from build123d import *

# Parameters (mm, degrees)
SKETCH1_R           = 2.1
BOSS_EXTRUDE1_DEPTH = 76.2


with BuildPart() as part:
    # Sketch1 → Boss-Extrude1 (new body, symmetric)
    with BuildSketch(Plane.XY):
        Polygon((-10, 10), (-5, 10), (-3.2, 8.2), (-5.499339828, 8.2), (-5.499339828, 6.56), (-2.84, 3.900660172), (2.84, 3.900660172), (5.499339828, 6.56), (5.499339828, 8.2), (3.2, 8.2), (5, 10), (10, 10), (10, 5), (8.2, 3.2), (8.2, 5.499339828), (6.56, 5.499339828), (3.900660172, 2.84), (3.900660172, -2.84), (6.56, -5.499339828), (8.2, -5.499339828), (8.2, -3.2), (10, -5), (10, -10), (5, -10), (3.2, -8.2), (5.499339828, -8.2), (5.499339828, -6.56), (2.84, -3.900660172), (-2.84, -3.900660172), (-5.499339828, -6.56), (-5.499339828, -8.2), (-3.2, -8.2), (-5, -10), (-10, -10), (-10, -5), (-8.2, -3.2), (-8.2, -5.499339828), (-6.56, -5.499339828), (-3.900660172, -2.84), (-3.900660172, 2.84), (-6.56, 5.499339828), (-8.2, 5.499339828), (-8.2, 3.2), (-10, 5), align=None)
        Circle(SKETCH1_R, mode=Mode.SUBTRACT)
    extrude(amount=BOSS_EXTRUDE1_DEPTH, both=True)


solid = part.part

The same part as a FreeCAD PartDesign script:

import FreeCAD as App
import Part
import Sketcher
from FreeCAD import Vector
Q = App.Units.Quantity


def add_polygon(sketch, points):
    """Adds a closed chain of lines whose ends are joined by coincident constraints."""
    first, n = sketch.GeometryCount, len(points)
    for a, b in zip(points, points[1:] + points[:1]):
        sketch.addGeometry(Part.LineSegment(App.Vector(*a, 0), App.Vector(*b, 0)), False)
    for i in range(n):
        sketch.addConstraint(Sketcher.Constraint("Coincident", first + i, 2, first + (i + 1) % n, 1))

doc = App.newDocument("Part")
params = doc.addObject("Spreadsheet::Sheet", "Params")
for row, (alias, value) in enumerate([
    ("sketch1_diameter", "4.2 mm"),
    ("sketch1_width", "5 mm"),
    ("sketch1_width2", "1.64 mm"),
    ("sketch1_width3", "5.68 mm"),
    ("pad1_length", "152.4 mm"),
], start=1):
    params.set(f"A{row}", alias)
    params.set(f"B{row}", "=" + value)
    params.setAlias(f"B{row}", alias)

body = doc.addObject("PartDesign::Body", "Body")

# Sketch on XY plane
sketch1 = body.newObject("Sketcher::SketchObject", "Sketch")
sketch1.AttachmentSupport = (doc.getObject("XY_Plane"), [""])
sketch1.MapMode = "FlatFace"
add_polygon(sketch1, [(-5, 10), (-10, 10), (-10, 5), (-8.2, 3.2), (-8.2, 5.49934), (-6.56, 5.49934), (-3.90066, 2.84), (-3.90066, -2.84), (-6.56, -5.49934), (-8.2, -5.49934), (-8.2, -3.2), (-10, -5), (-10, -10), (-5, -10), (-3.2, -8.2), (-5.49934, -8.2), (-5.49934, -6.56), (-2.84, -3.90066), (2.84, -3.90066), (5.49934, -6.56), (5.49934, -8.2), (3.2, -8.2), (5, -10), (10, -10), (10, -5), (8.2, -3.2), (8.2, -5.49934), (6.56, -5.49934), (3.90066, -2.84), (3.90066, 2.84), (6.56, 5.49934), (8.2, 5.49934), (8.2, 3.2), (10, 5), (10, 10), (5, 10), (3.2, 8.2), (5.49934, 8.2), (5.49934, 6.56), (2.84, 3.90066), (-2.84, 3.90066), (-5.49934, 6.56), (-5.49934, 8.2), (-3.2, 8.2)])  # lines 0-43
sketch1.addGeometry(Part.Circle(Vector(0, 0, 0), Vector(0, 0, 1), 2.1), False)  # 44
sketch1.addConstraint(Sketcher.Constraint("Horizontal", 0))
sketch1.addConstraint(Sketcher.Constraint("Vertical", 1))
sketch1.addConstraint(Sketcher.Constraint("Vertical", 3))
sketch1.addConstraint(Sketcher.Constraint("Horizontal", 4))
sketch1.addConstraint(Sketcher.Constraint("Vertical", 6))
sketch1.addConstraint(Sketcher.Constraint("Horizontal", 8))
sketch1.addConstraint(Sketcher.Constraint("Vertical", 9))
sketch1.addConstraint(Sketcher.Constraint("Vertical", 11))
sketch1.addConstraint(Sketcher.Constraint("Horizontal", 12))
sketch1.addConstraint(Sketcher.Constraint("Horizontal", 14))
sketch1.addConstraint(Sketcher.Constraint("Vertical", 15))
sketch1.addConstraint(Sketcher.Constraint("Horizontal", 17))
sketch1.addConstraint(Sketcher.Constraint("Vertical", 19))
sketch1.addConstraint(Sketcher.Constraint("Horizontal", 20))
sketch1.addConstraint(Sketcher.Constraint("Horizontal", 22))
sketch1.addConstraint(Sketcher.Constraint("Vertical", 23))
sketch1.addConstraint(Sketcher.Constraint("Vertical", 25))
sketch1.addConstraint(Sketcher.Constraint("Horizontal", 26))
sketch1.addConstraint(Sketcher.Constraint("Vertical", 28))
sketch1.addConstraint(Sketcher.Constraint("Horizontal", 30))
sketch1.addConstraint(Sketcher.Constraint("Vertical", 31))
sketch1.addConstraint(Sketcher.Constraint("Vertical", 33))
sketch1.addConstraint(Sketcher.Constraint("Horizontal", 34))
sketch1.addConstraint(Sketcher.Constraint("Horizontal", 36))
sketch1.addConstraint(Sketcher.Constraint("Vertical", 37))
sketch1.addConstraint(Sketcher.Constraint("Horizontal", 39))
sketch1.addConstraint(Sketcher.Constraint("Vertical", 41))
sketch1.addConstraint(Sketcher.Constraint("Horizontal", 42))
sketch1.addConstraint(Sketcher.Constraint("Coincident", 44, 3, -1, 1))
sketch1.addConstraint(Sketcher.Constraint("Symmetric", 0, 2, 22, 2, -1, 1))
sketch1.addConstraint(Sketcher.Constraint("Symmetric", 2, 2, 24, 2, -1, 1))
sketch1.addConstraint(Sketcher.Constraint("Symmetric", 4, 2, 26, 2, -1, 1))
sketch1.addConstraint(Sketcher.Constraint("Symmetric", 5, 2, 27, 2, -1, 1))
sketch1.addConstraint(Sketcher.Constraint("Symmetric", 7, 2, 29, 2, -1, 1))
sketch1.addConstraint(Sketcher.Constraint("Symmetric", 9, 2, 31, 2, -1, 1))
sketch1.addConstraint(Sketcher.Constraint("Symmetric", 10, 2, 32, 2, -1, 1))
sketch1.addConstraint(Sketcher.Constraint("Symmetric", 12, 2, 34, 2, -1, 1))
sketch1.addConstraint(Sketcher.Constraint("Symmetric", 13, 2, 35, 2, -1, 1))
sketch1.addConstraint(Sketcher.Constraint("Symmetric", 15, 2, 37, 2, -1, 1))
sketch1.addConstraint(Sketcher.Constraint("Symmetric", 16, 2, 38, 2, -1, 1))
sketch1.addConstraint(Sketcher.Constraint("Symmetric", 18, 2, 40, 2, -1, 1))
sketch1.addConstraint(Sketcher.Constraint("Symmetric", 20, 2, 42, 2, -1, 1))
sketch1.addConstraint(Sketcher.Constraint("Symmetric", 15, 2, 18, 2, -2))
sketch1.addConstraint(Sketcher.Constraint("Symmetric", 13, 2, 20, 2, -2))
sketch1.addConstraint(Sketcher.Constraint("Symmetric", 12, 2, 21, 2, -2))
sketch1.addConstraint(Sketcher.Constraint("Symmetric", 10, 2, 23, 2, -2))
sketch1.addConstraint(Sketcher.Constraint("Symmetric", 9, 2, 24, 2, -2))
sketch1.addConstraint(Sketcher.Constraint("Symmetric", 7, 2, 26, 2, -2))
sketch1.addConstraint(Sketcher.Constraint("Parallel", 2, 5))
sketch1.addConstraint(Sketcher.Constraint("Perpendicular", 5, 7))
sketch1.addConstraint(Sketcher.Constraint("Parallel", 7, 10))
sketch1.addConstraint(Sketcher.Constraint("Parallel", 10, 13))
sketch1.addConstraint(Sketcher.Constraint("Parallel", 13, 16))
sketch1.addConstraint(Sketcher.Constraint("Perpendicular", 16, 18))
sketch1.addConstraint(Sketcher.Constraint("Parallel", 18, 21))
sketch1.addConstraint(Sketcher.Constraint("Perpendicular", 27, 29))
sketch1.addConstraint(Sketcher.Constraint("Perpendicular", 38, 40))
sketch1.addConstraint(Sketcher.Constraint("Parallel", 40, 43))
sketch1.addConstraint(Sketcher.Constraint("Equal", 34, 1))
sketch1.addConstraint(Sketcher.Constraint("Equal", 42, 3))
sketch1.addConstraint(Sketcher.Constraint("Equal", 39, 6))
sketch1.addConstraint(Sketcher.Constraint("Equal", 30, 15))
sketch1.addConstraint(Sketcher.Constraint("Equal", 10, 13))
sketch1.addConstraint(Sketcher.Constraint("Equal", 7, 16))
sketch1.addConstraint(Sketcher.Constraint("Diameter", 44, Q("4.2 mm")))
sketch1.addConstraint(Sketcher.Constraint("DistanceX", 0, 2, 0, 1, Q("5 mm")))
sketch1.addConstraint(Sketcher.Constraint("DistanceX", 0, 2, -1, 1, Q("10 mm")))
sketch1.addConstraint(Sketcher.Constraint("DistanceX", 4, 1, 4, 2, Q("1.64 mm")))
sketch1.addConstraint(Sketcher.Constraint("DistanceX", 17, 1, 17, 2, Q("5.68 mm")))
sketch1.addConstraint(Sketcher.Constraint("DistanceX", 2, 2, -1, 1, Q("8.2 mm")))
sketch1.addConstraint(Sketcher.Constraint("DistanceX", 14, 2, 14, 1, Q("2.29934 mm")))
sketch1.setExpression("Constraints[108]", "Params.sketch1_diameter")
sketch1.setExpression("Constraints[109]", "Params.sketch1_width")
sketch1.setExpression("Constraints[111]", "Params.sketch1_width2")
sketch1.setExpression("Constraints[112]", "Params.sketch1_width3")
pad1 = body.newObject("PartDesign::Pad", "Pad")
pad1.Profile = sketch1
pad1.setExpression("Length", "Params.pad1_length")
pad1.Midplane = True

doc.recompute()
